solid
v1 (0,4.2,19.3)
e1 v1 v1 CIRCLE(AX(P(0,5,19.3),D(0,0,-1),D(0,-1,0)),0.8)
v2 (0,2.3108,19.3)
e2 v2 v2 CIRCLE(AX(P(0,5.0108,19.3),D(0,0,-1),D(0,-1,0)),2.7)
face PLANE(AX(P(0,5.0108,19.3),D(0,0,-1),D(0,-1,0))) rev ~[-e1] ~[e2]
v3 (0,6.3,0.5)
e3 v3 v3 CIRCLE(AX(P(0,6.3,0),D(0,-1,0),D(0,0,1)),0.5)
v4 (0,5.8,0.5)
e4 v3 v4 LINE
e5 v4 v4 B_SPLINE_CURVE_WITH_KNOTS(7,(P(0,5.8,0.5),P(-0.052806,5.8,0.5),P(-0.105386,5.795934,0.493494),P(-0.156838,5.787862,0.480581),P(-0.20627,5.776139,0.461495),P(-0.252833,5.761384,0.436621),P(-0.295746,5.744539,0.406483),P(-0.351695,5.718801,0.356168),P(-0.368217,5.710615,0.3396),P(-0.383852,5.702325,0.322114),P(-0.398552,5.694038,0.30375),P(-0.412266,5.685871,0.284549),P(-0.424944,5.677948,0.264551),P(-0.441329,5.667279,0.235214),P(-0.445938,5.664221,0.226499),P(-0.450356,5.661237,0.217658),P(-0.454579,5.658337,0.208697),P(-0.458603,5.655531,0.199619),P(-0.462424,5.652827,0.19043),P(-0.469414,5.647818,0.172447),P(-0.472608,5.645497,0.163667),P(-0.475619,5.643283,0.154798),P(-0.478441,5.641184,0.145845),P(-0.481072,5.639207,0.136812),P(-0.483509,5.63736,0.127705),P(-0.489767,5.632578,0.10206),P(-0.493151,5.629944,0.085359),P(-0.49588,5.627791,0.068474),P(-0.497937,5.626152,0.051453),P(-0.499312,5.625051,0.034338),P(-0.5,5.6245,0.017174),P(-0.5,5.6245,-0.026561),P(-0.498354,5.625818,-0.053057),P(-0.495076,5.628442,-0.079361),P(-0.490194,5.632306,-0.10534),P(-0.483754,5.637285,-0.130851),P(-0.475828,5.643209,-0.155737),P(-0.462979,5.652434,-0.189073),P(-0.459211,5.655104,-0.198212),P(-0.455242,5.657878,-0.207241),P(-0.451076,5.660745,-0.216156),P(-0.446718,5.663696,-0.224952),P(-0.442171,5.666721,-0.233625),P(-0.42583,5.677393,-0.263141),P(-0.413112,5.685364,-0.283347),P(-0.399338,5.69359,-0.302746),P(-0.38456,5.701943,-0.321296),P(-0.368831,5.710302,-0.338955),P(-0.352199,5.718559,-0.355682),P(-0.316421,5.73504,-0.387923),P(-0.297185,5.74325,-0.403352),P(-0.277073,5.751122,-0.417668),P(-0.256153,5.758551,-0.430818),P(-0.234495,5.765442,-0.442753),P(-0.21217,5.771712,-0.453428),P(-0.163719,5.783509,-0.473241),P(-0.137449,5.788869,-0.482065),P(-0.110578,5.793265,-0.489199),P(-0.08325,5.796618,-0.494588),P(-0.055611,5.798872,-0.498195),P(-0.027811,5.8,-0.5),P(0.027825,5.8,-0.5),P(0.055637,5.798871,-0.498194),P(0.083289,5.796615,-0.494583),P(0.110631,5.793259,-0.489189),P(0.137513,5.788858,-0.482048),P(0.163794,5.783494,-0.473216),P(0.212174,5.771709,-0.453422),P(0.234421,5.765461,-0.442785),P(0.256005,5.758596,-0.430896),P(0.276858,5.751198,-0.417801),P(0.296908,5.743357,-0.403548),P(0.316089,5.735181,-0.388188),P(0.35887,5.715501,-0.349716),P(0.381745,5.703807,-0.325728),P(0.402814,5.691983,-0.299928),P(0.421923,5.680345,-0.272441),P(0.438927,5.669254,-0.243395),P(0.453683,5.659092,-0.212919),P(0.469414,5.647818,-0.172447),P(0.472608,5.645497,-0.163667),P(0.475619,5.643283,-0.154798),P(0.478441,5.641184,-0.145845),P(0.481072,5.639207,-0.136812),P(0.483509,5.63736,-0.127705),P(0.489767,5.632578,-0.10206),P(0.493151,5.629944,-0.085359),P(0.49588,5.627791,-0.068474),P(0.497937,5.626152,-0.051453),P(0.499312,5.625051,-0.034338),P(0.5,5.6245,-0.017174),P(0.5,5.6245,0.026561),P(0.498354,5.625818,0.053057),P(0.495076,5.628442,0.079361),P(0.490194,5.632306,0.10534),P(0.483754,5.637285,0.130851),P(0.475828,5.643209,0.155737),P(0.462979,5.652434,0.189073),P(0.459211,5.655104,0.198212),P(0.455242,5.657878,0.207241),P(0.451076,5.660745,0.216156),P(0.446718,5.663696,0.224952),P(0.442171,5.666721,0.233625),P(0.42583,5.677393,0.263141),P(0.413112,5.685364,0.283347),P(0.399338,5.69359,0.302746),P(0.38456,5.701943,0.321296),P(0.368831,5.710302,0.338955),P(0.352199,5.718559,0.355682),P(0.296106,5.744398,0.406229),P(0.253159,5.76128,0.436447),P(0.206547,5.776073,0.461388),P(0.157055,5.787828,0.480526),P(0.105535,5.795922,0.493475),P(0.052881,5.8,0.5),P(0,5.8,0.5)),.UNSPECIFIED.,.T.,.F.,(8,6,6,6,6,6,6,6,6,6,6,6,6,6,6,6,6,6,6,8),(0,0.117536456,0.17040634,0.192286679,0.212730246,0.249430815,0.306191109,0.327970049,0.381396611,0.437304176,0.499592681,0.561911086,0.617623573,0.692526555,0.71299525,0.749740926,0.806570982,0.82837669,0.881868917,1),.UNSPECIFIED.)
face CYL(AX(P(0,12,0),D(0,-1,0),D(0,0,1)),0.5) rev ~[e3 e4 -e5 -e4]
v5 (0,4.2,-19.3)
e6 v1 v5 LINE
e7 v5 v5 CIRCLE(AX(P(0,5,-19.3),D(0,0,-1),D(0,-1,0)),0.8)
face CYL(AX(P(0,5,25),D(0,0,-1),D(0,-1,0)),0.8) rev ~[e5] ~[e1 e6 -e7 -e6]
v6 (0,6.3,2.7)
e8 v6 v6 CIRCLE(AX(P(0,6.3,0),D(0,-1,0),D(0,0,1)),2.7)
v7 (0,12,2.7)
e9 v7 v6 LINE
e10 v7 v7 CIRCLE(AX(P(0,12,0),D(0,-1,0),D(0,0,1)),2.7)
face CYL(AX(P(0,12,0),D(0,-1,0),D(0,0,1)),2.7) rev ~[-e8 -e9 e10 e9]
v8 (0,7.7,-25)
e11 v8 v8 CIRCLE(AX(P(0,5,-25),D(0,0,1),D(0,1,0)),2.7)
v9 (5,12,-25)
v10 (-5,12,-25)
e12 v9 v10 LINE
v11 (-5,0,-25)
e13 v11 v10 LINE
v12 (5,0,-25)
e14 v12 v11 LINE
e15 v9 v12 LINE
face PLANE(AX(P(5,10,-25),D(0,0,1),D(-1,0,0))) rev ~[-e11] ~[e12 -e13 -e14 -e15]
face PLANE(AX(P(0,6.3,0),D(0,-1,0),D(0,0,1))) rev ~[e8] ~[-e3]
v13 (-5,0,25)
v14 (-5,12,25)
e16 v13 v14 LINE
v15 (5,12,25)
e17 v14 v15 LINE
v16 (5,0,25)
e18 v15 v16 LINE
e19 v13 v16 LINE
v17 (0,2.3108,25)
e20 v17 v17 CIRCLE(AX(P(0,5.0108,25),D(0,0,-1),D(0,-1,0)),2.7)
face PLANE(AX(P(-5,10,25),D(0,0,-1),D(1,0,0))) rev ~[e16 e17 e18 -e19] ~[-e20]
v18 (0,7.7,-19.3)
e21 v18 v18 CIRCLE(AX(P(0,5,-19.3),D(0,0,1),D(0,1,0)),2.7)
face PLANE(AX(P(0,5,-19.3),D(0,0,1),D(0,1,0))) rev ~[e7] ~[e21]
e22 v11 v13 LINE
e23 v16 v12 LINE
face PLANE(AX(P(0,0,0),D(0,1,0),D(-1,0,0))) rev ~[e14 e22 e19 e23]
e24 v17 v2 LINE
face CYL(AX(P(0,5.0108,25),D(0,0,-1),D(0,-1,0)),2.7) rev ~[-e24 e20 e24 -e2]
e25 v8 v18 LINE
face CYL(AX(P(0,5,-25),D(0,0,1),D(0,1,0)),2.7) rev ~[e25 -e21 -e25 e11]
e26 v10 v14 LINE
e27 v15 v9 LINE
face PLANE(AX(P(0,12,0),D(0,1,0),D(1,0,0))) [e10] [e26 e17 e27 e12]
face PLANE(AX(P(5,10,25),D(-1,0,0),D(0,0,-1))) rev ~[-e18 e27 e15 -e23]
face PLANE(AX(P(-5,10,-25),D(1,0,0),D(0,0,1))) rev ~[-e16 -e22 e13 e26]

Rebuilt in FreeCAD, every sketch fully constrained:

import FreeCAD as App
import Part
import Sketcher

V = App.Vector

doc = App.newDocument("Part")
params = doc.addObject("Spreadsheet::Sheet", "Params")
for row, (alias, value) in enumerate([
    ("sketch1_width", "10 mm"),
    ("sketch1_height", "50 mm"),
    ("pad1_length", "10 mm"),
    ("sketch2_diameter", "1.6 mm"),
    ("hole_diameter", "1.6 mm"),
    ("sketch3_width", "10 mm"),
    ("sketch3_height", "50 mm"),
    ("pad2_length", "2 mm"),
    ("sketch4_diameter", "1 mm"),
    ("hole2_diameter", "1 mm"),
    ("hole2_depth", "6.7 mm"),
    ("sketch5_diameter", "5.4 mm"),
    ("hole3_diameter", "5.4 mm"),
    ("hole3_depth", "5.7 mm"),
    ("sketch6_diameter", "5.4 mm"),
    ("hole4_diameter", "5.4 mm"),
    ("hole4_depth", "5.7 mm"),
    ("sketch7_diameter", "5.4 mm"),
    ("hole5_diameter", "5.4 mm"),
    ("hole5_depth", "5.7 mm"),
], start=1):
    params.set(f"A{row}", alias)
    params.set(f"B{row}", "=" + value)
    params.setAlias(f"B{row}", alias)

body = doc.addObject("PartDesign::Body", "Body")

sketch1 = body.newObject("Sketcher::SketchObject", "Sketch")
sketch1.AttachmentSupport = (doc.getObject("XZ_Plane"), [""])
sketch1.MapMode = "FlatFace"
sketch1.addGeometry([
    Part.LineSegment(V(5, 25, 0), V(5, -25, 0)),
    Part.LineSegment(V(5, -25, 0), V(-5, -25, 0)),
    Part.LineSegment(V(-5, -25, 0), V(-5, 25, 0)),
    Part.LineSegment(V(-5, 25, 0), V(5, 25, 0)),
], False)
sketch1.addConstraint([
    Sketcher.Constraint("Coincident", 0, 2, 1, 1),
    Sketcher.Constraint("Coincident", 1, 2, 2, 1),
    Sketcher.Constraint("Coincident", 2, 2, 3, 1),
    Sketcher.Constraint("Coincident", 3, 2, 0, 1),
    Sketcher.Constraint("Vertical", 0),
    Sketcher.Constraint("Horizontal", 1),
    Sketcher.Constraint("Vertical", 2),
    Sketcher.Constraint("Horizontal", 3),
    Sketcher.Constraint("Symmetric", 0, 2, 2, 2, -1, 1),
    Sketcher.Constraint("DistanceX", 1, 2, 1, 1, 10.0),
    Sketcher.Constraint("DistanceY", 0, 2, 0, 1, 50.0),
])
sketch1.setExpression("Constraints[9]", "Params.sketch1_width")
sketch1.setExpression("Constraints[10]", "Params.sketch1_height")
pad1 = body.newObject("PartDesign::Pad", "Pad")
pad1.Profile = sketch1
pad1.setExpression("Length", "Params.pad1_length")
pad1.Reversed = True

sketch2 = body.newObject("Sketcher::SketchObject", "Sketch001")
sketch2.AttachmentSupport = (doc.getObject("XY_Plane"), [""])
sketch2.MapMode = "FlatFace"
sketch2.AttachmentOffset = App.Placement(V(0, 0, 25), App.Rotation())
sketch2.addGeometry(Part.Circle(V(0, 5, 0), V(0, 0, 1), 0.8), False)
sketch2.addConstraint([
    Sketcher.Constraint("PointOnObject", 0, 3, -2),
    Sketcher.Constraint("Diameter", 0, 1.6),
    Sketcher.Constraint("DistanceY", -1, 1, 0, 3, 5.0),
])
sketch2.setExpression("Constraints[1]", "Params.sketch2_diameter")
doc.recompute()
hole = body.newObject("PartDesign::Hole", "Hole")
hole.Profile = sketch2
hole.ThreadType = "None"
hole.setExpression("Diameter", "Params.hole_diameter")
hole.DepthType = "ThroughAll"

sketch3 = body.newObject("Sketcher::SketchObject", "Sketch002")
sketch3.AttachmentSupport = (doc.getObject("XZ_Plane"), [""])
sketch3.MapMode = "FlatFace"
sketch3.AttachmentOffset = App.Placement(V(0, 0, -10), App.Rotation())
sketch3.addGeometry([
    Part.LineSegment(V(5, -25, 0), V(-5, -25, 0)),
    Part.LineSegment(V(-5, -25, 0), V(-5, 25, 0)),
    Part.LineSegment(V(-5, 25, 0), V(5, 25, 0)),
    Part.LineSegment(V(5, 25, 0), V(5, -25, 0)),
], False)
sketch3.addConstraint([
    Sketcher.Constraint("Coincident", 0, 2, 1, 1),
    Sketcher.Constraint("Coincident", 1, 2, 2, 1),
    Sketcher.Constraint("Coincident", 2, 2, 3, 1),
    Sketcher.Constraint("Coincident", 3, 2, 0, 1),
    Sketcher.Constraint("Horizontal", 0),
    Sketcher.Constraint("Vertical", 1),
    Sketcher.Constraint("Horizontal", 2),
    Sketcher.Constraint("Vertical", 3),
    Sketcher.Constraint("Symmetric", 0, 2, 2, 2, -1, 1),
    Sketcher.Constraint("DistanceX", 0, 2, 0, 1, 10.0),
    Sketcher.Constraint("DistanceY", 1, 1, 1, 2, 50.0),
])
sketch3.setExpression("Constraints[9]", "Params.sketch3_width")
sketch3.setExpression("Constraints[10]", "Params.sketch3_height")
pad2 = body.newObject("PartDesign::Pad", "Pad001")
pad2.Profile = sketch3
pad2.setExpression("Length", "Params.pad2_length")
pad2.Reversed = True

sketch4 = body.newObject("Sketcher::SketchObject", "Sketch003")
sketch4.AttachmentSupport = (doc.getObject("XZ_Plane"), [""])
sketch4.MapMode = "FlatFace"
sketch4.AttachmentOffset = App.Placement(V(0, 0, -12), App.Rotation())
sketch4.addGeometry(Part.Circle(V(0, 0, 0), V(0, 0, 1), 0.5), False)
sketch4.addConstraint([
    Sketcher.Constraint("Coincident", 0, 3, -1, 1),
    Sketcher.Constraint("Diameter", 0, 1.0),
])
sketch4.setExpression("Constraints[1]", "Params.sketch4_diameter")
doc.recompute()
hole2 = body.newObject("PartDesign::Hole", "Hole001")
hole2.Profile = sketch4
hole2.ThreadType = "None"
hole2.setExpression("Diameter", "Params.hole2_diameter")
hole2.DepthType = "Dimension"
hole2.setExpression("Depth", "Params.hole2_depth")
hole2.DrillPoint = "Flat"
hole2.Reversed = True

sketch5 = body.newObject("Sketcher::SketchObject", "Sketch004")
sketch5.AttachmentSupport = (doc.getObject("XZ_Plane"), [""])
sketch5.MapMode = "FlatFace"
sketch5.AttachmentOffset = App.Placement(V(0, 0, -12), App.Rotation())
sketch5.addGeometry(Part.Circle(V(0, 0, 0), V(0, 0, 1), 2.7), False)
sketch5.addConstraint([
    Sketcher.Constraint("Coincident", 0, 3, -1, 1),
    Sketcher.Constraint("Diameter", 0, 5.4),
])
sketch5.setExpression("Constraints[1]", "Params.sketch5_diameter")
doc.recompute()
hole3 = body.newObject("PartDesign::Hole", "Hole002")
hole3.Profile = sketch5
hole3.ThreadType = "None"
hole3.setExpression("Diameter", "Params.hole3_diameter")
hole3.DepthType = "Dimension"
hole3.setExpression("Depth", "Params.hole3_depth")
hole3.DrillPoint = "Flat"
hole3.Reversed = True

sketch6 = body.newObject("Sketcher::SketchObject", "Sketch005")
sketch6.AttachmentSupport = (doc.getObject("XY_Plane"), [""])
sketch6.MapMode = "FlatFace"
sketch6.AttachmentOffset = App.Placement(V(0, 0, 25), App.Rotation())
sketch6.addGeometry(Part.Circle(V(0, 5.0108, 0), V(0, 0, 1), 2.7), False)
sketch6.addConstraint([
    Sketcher.Constraint("PointOnObject", 0, 3, -2),
    Sketcher.Constraint("Diameter", 0, 5.4),
    Sketcher.Constraint("DistanceY", -1, 1, 0, 3, 5.0108),
])
sketch6.setExpression("Constraints[1]", "Params.sketch6_diameter")
doc.recompute()
hole4 = body.newObject("PartDesign::Hole", "Hole003")
hole4.Profile = sketch6
hole4.ThreadType = "None"
hole4.setExpression("Diameter", "Params.hole4_diameter")
hole4.DepthType = "Dimension"
hole4.setExpression("Depth", "Params.hole4_depth")
hole4.DrillPoint = "Flat"

sketch7 = body.newObject("Sketcher::SketchObject", "Sketch006")
sketch7.AttachmentSupport = (doc.getObject("XY_Plane"), [""])
sketch7.MapMode = "FlatFace"
sketch7.AttachmentOffset = App.Placement(V(0, 0, -25), App.Rotation())
sketch7.addGeometry(Part.Circle(V(0, 5, 0), V(0, 0, 1), 2.7), False)
sketch7.addConstraint([
    Sketcher.Constraint("PointOnObject", 0, 3, -2),
    Sketcher.Constraint("Diameter", 0, 5.4),
    Sketcher.Constraint("DistanceY", -1, 1, 0, 3, 5.0),
])
sketch7.setExpression("Constraints[1]", "Params.sketch7_diameter")
doc.recompute()
hole5 = body.newObject("PartDesign::Hole", "Hole004")
hole5.Profile = sketch7
hole5.ThreadType = "None"
hole5.setExpression("Diameter", "Params.hole5_diameter")
hole5.DepthType = "Dimension"
hole5.setExpression("Depth", "Params.hole5_depth")
hole5.DrillPoint = "Flat"
hole5.Reversed = True

doc.recompute()
